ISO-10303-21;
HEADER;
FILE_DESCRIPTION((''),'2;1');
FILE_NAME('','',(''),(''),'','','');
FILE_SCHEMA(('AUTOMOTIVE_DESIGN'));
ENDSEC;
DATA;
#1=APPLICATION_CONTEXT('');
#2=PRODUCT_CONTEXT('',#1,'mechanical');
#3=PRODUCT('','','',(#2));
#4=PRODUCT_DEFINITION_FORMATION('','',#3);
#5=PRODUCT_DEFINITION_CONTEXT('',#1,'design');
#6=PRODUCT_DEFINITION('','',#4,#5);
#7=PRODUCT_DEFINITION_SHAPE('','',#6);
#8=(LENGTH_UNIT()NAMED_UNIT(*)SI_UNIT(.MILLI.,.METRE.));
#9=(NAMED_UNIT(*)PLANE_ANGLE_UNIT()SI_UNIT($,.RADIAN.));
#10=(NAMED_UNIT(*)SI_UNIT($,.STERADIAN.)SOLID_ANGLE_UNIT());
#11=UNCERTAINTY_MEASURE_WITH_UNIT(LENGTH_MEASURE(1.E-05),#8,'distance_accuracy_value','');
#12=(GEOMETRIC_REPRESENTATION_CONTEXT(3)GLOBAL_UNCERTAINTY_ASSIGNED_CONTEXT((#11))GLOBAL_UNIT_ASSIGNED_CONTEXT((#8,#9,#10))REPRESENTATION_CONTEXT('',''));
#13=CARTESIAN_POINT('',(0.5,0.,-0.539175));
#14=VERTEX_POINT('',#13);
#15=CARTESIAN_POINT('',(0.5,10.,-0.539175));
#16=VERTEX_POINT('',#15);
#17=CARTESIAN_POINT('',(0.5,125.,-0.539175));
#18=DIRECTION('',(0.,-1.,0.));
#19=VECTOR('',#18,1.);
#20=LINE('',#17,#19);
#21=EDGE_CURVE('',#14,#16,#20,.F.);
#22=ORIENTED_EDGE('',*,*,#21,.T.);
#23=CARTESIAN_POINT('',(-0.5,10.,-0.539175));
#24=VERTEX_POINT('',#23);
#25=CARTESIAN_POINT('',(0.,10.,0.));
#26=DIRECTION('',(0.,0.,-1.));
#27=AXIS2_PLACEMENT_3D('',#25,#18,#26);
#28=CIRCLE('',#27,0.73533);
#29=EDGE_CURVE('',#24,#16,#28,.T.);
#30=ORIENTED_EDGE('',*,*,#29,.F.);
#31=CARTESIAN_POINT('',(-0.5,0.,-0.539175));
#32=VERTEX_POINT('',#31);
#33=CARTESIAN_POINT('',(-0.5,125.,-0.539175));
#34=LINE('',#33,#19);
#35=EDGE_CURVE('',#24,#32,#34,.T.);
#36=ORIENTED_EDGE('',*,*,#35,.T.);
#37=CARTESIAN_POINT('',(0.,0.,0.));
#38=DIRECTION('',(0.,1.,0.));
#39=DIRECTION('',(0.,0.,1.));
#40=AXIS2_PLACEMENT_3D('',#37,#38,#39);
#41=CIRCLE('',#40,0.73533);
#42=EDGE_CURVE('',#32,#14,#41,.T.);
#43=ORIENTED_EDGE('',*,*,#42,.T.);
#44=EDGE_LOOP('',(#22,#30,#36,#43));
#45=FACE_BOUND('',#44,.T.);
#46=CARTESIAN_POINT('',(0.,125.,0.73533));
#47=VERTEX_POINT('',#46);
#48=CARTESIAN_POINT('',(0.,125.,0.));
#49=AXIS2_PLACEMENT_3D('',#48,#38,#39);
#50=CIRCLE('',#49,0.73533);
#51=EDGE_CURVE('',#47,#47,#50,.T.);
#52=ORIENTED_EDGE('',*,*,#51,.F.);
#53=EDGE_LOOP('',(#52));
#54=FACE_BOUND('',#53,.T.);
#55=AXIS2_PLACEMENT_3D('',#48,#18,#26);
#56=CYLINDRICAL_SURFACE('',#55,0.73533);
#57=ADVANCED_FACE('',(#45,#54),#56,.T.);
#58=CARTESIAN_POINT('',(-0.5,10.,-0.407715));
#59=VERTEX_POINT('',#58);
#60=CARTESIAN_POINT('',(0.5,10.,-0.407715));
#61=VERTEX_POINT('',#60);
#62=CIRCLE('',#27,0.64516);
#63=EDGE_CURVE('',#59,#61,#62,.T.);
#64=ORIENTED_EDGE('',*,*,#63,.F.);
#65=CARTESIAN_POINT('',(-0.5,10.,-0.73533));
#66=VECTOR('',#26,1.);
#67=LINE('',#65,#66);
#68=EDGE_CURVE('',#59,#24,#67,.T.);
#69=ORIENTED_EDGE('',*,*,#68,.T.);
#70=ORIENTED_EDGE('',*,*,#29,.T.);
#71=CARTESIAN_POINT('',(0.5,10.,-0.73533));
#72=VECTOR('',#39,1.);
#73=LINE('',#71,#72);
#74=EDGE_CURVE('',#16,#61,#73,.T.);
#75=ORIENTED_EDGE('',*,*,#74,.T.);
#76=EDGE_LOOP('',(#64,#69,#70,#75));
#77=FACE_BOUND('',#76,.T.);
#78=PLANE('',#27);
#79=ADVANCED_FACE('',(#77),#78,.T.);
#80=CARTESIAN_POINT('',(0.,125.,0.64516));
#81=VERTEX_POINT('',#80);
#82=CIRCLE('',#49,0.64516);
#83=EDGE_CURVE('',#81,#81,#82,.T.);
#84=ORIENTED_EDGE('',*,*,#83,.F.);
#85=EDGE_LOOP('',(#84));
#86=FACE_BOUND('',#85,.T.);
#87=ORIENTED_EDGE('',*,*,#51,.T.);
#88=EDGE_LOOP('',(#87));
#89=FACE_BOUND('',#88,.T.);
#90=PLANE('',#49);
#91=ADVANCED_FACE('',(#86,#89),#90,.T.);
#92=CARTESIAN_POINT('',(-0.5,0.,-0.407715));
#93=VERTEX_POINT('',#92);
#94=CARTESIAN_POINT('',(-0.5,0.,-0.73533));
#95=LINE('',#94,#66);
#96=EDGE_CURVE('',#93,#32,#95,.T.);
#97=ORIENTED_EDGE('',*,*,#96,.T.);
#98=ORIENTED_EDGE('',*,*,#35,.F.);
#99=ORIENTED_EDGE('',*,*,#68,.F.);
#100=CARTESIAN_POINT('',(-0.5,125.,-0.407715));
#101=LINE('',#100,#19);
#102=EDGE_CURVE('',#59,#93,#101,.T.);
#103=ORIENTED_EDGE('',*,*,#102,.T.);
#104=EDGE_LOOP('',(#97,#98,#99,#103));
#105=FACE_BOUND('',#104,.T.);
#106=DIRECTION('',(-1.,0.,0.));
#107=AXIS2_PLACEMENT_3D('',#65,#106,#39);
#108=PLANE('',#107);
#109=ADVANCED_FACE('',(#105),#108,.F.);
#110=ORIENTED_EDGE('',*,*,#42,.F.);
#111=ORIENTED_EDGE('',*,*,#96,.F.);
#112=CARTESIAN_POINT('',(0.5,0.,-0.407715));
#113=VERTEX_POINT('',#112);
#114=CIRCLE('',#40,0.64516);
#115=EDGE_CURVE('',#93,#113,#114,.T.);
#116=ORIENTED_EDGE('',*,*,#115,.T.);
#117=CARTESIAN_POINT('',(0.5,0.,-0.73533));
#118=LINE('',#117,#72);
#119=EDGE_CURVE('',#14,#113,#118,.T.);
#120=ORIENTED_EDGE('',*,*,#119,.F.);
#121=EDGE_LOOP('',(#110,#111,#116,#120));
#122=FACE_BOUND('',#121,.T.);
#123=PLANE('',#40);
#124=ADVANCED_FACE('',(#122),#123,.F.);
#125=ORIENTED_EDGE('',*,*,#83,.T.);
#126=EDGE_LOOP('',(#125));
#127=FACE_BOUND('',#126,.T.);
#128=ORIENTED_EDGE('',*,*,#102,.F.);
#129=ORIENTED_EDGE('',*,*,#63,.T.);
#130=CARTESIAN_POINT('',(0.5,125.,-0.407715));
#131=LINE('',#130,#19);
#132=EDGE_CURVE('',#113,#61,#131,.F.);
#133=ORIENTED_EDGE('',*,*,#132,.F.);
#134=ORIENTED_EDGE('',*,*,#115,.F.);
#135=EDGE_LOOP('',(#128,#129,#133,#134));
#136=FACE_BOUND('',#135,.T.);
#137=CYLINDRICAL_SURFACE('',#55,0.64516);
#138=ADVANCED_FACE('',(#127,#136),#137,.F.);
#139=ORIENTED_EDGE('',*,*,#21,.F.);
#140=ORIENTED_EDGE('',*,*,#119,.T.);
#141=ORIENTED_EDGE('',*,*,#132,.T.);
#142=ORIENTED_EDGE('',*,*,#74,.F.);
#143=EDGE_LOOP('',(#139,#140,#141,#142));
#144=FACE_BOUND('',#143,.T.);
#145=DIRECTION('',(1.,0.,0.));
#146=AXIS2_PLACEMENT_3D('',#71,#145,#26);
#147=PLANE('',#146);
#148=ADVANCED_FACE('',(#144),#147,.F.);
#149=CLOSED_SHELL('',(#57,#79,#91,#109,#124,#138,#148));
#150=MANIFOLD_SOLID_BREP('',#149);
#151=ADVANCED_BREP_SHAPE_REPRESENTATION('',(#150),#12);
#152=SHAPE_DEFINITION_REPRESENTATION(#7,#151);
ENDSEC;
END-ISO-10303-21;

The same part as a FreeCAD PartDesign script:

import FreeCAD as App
import Part
import Sketcher
from FreeCAD import Vector

doc = App.newDocument("Part")
body = doc.addObject("PartDesign::Body", "Body")

# Sketch on XZ plane
sketch1 = body.newObject("Sketcher::SketchObject", "Sketch")
sketch1.AttachmentSupport = (doc.getObject("XZ_Plane"), [""])
sketch1.MapMode = "FlatFace"
sketch1.addGeometry([
    Part.Circle(Vector(0, 0, 0), Vector(0, 0, 1), 0.73533),
    Part.Circle(Vector(0, 0, 0), Vector(0, 0, 1), 0.64516),
], False)
sketch1.addConstraint([
    Sketcher.Constraint("Coincident", 0, 3, -1, 1),
    Sketcher.Constraint("Coincident", 1, 3, -1, 1),
    Sketcher.Constraint("Diameter", 0, 1.47066),
    Sketcher.Constraint("Diameter", 1, 1.29032),
])
pad1 = body.newObject("PartDesign::Pad", "Pad")
pad1.Profile = sketch1
pad1.Length = 125
pad1.Reversed = True

# Sketch on XZ plane
sketch2 = body.newObject("Sketcher::SketchObject", "Sketch001")
sketch2.AttachmentSupport = (doc.getObject("XZ_Plane"), [""])
sketch2.MapMode = "FlatFace"
sketch2.addGeometry([
    Part.LineSegment(Vector(-0.5, -0.391146, 0), Vector(-0.5, -0.73533, 0)),
    Part.LineSegment(Vector(-0.5, -0.73533, 0), Vector(0.5, -0.73533, 0)),
    Part.LineSegment(Vector(0.5, -0.73533, 0), Vector(0.5, -0.391146, 0)),
    Part.LineSegment(Vector(0.5, -0.391146, 0), Vector(-0.5, -0.391146, 0)),
], False)
sketch2.addConstraint([
    Sketcher.Constraint("Coincident", 0, 2, 1, 1),
    Sketcher.Constraint("Coincident", 1, 2, 2, 1),
    Sketcher.Constraint("Coincident", 2, 2, 3, 1),
    Sketcher.Constraint("Coincident", 3, 2, 0, 1),
    Sketcher.Constraint("Vertical", 0),
    Sketcher.Constraint("Horizontal", 1),
    Sketcher.Constraint("Vertical", 2),
    Sketcher.Constraint("Horizontal", 3),
    Sketcher.Constraint("DistanceX", 1, 1, 1, 2, 1.0),
    Sketcher.Constraint("DistanceX", 0, 2, -1, 1, 0.5),
    Sketcher.Constraint("DistanceY", 0, 2, 0, 1, 0.344184),
    Sketcher.Constraint("DistanceY", 0, 2, -1, 1, 0.73533),
])
pocket1 = body.newObject("PartDesign::Pocket", "Pocket")
pocket1.Profile = sketch2
pocket1.Length = 10

doc.recompute()
